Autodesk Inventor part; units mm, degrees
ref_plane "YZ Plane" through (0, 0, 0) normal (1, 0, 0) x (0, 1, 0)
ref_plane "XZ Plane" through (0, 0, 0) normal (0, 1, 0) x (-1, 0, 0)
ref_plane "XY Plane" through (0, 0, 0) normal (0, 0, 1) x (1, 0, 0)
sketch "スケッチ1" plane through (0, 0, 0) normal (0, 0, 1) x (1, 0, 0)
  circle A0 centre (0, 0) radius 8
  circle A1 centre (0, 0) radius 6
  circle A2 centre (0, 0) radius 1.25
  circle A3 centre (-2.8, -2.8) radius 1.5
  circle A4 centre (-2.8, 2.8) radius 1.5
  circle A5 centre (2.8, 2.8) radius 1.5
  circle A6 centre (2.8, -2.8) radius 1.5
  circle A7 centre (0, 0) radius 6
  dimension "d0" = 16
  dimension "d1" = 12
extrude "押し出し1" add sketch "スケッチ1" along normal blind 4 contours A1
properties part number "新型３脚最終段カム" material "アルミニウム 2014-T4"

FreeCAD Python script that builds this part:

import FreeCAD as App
import Part
import Sketcher

doc = App.newDocument("Part")
body = doc.addObject("PartDesign::Body", "Body")

# Sketch on XY plane
sketch1 = body.newObject("Sketcher::SketchObject", "Sketch")
sketch1.AttachmentSupport = (doc.getObject("XY_Plane"), [""])
sketch1.MapMode = "FlatFace"
sketch1.addGeometry([
    Part.Circle(App.Vector(0, 0, 0), App.Vector(0, 0, 1), 6),  # 0
    Part.Circle(App.Vector(-2.8, -2.8, 0), App.Vector(0, 0, 1), 1.5),  # 1
    Part.Circle(App.Vector(2.8, -2.8, 0), App.Vector(0, 0, 1), 1.5),  # 2
    Part.Circle(App.Vector(-2.8, 2.8, 0), App.Vector(0, 0, 1), 1.5),  # 3
    Part.Circle(App.Vector(0, 0, 0), App.Vector(0, 0, 1), 1.2),  # 4
    Part.Circle(App.Vector(2.8, 2.8, 0), App.Vector(0, 0, 1), 1.5),  # 5
], False)
sketch1.addConstraint([
    Sketcher.Constraint("Coincident", 0, 3, -1, 1),
    Sketcher.Constraint("Coincident", 4, 3, -1, 1),
    Sketcher.Constraint("Equal", 1, 2),
    Sketcher.Constraint("Equal", 2, 3),
    Sketcher.Constraint("Equal", 3, 5),
    Sketcher.Constraint("Symmetric", 2, 3, 3, 3, -1, 1),
    Sketcher.Constraint("Symmetric", 1, 3, 5, 3, -1, 1),
    Sketcher.Constraint("Symmetric", 1, 3, 2, 3, -2),
    Sketcher.Constraint("Diameter", 0, 12.0),
    Sketcher.Constraint("Diameter", 1, 3.0),
    Sketcher.Constraint("Diameter", 4, 2.5),
    Sketcher.Constraint("DistanceX", 1, 3, -1, 1, 2.8),
    Sketcher.Constraint("DistanceY", 1, 3, -1, 1, 2.8),
])
pad1 = body.newObject("PartDesign::Pad", "Pad")
pad1.Profile = sketch1
pad1.Length = 4

doc.recompute()
